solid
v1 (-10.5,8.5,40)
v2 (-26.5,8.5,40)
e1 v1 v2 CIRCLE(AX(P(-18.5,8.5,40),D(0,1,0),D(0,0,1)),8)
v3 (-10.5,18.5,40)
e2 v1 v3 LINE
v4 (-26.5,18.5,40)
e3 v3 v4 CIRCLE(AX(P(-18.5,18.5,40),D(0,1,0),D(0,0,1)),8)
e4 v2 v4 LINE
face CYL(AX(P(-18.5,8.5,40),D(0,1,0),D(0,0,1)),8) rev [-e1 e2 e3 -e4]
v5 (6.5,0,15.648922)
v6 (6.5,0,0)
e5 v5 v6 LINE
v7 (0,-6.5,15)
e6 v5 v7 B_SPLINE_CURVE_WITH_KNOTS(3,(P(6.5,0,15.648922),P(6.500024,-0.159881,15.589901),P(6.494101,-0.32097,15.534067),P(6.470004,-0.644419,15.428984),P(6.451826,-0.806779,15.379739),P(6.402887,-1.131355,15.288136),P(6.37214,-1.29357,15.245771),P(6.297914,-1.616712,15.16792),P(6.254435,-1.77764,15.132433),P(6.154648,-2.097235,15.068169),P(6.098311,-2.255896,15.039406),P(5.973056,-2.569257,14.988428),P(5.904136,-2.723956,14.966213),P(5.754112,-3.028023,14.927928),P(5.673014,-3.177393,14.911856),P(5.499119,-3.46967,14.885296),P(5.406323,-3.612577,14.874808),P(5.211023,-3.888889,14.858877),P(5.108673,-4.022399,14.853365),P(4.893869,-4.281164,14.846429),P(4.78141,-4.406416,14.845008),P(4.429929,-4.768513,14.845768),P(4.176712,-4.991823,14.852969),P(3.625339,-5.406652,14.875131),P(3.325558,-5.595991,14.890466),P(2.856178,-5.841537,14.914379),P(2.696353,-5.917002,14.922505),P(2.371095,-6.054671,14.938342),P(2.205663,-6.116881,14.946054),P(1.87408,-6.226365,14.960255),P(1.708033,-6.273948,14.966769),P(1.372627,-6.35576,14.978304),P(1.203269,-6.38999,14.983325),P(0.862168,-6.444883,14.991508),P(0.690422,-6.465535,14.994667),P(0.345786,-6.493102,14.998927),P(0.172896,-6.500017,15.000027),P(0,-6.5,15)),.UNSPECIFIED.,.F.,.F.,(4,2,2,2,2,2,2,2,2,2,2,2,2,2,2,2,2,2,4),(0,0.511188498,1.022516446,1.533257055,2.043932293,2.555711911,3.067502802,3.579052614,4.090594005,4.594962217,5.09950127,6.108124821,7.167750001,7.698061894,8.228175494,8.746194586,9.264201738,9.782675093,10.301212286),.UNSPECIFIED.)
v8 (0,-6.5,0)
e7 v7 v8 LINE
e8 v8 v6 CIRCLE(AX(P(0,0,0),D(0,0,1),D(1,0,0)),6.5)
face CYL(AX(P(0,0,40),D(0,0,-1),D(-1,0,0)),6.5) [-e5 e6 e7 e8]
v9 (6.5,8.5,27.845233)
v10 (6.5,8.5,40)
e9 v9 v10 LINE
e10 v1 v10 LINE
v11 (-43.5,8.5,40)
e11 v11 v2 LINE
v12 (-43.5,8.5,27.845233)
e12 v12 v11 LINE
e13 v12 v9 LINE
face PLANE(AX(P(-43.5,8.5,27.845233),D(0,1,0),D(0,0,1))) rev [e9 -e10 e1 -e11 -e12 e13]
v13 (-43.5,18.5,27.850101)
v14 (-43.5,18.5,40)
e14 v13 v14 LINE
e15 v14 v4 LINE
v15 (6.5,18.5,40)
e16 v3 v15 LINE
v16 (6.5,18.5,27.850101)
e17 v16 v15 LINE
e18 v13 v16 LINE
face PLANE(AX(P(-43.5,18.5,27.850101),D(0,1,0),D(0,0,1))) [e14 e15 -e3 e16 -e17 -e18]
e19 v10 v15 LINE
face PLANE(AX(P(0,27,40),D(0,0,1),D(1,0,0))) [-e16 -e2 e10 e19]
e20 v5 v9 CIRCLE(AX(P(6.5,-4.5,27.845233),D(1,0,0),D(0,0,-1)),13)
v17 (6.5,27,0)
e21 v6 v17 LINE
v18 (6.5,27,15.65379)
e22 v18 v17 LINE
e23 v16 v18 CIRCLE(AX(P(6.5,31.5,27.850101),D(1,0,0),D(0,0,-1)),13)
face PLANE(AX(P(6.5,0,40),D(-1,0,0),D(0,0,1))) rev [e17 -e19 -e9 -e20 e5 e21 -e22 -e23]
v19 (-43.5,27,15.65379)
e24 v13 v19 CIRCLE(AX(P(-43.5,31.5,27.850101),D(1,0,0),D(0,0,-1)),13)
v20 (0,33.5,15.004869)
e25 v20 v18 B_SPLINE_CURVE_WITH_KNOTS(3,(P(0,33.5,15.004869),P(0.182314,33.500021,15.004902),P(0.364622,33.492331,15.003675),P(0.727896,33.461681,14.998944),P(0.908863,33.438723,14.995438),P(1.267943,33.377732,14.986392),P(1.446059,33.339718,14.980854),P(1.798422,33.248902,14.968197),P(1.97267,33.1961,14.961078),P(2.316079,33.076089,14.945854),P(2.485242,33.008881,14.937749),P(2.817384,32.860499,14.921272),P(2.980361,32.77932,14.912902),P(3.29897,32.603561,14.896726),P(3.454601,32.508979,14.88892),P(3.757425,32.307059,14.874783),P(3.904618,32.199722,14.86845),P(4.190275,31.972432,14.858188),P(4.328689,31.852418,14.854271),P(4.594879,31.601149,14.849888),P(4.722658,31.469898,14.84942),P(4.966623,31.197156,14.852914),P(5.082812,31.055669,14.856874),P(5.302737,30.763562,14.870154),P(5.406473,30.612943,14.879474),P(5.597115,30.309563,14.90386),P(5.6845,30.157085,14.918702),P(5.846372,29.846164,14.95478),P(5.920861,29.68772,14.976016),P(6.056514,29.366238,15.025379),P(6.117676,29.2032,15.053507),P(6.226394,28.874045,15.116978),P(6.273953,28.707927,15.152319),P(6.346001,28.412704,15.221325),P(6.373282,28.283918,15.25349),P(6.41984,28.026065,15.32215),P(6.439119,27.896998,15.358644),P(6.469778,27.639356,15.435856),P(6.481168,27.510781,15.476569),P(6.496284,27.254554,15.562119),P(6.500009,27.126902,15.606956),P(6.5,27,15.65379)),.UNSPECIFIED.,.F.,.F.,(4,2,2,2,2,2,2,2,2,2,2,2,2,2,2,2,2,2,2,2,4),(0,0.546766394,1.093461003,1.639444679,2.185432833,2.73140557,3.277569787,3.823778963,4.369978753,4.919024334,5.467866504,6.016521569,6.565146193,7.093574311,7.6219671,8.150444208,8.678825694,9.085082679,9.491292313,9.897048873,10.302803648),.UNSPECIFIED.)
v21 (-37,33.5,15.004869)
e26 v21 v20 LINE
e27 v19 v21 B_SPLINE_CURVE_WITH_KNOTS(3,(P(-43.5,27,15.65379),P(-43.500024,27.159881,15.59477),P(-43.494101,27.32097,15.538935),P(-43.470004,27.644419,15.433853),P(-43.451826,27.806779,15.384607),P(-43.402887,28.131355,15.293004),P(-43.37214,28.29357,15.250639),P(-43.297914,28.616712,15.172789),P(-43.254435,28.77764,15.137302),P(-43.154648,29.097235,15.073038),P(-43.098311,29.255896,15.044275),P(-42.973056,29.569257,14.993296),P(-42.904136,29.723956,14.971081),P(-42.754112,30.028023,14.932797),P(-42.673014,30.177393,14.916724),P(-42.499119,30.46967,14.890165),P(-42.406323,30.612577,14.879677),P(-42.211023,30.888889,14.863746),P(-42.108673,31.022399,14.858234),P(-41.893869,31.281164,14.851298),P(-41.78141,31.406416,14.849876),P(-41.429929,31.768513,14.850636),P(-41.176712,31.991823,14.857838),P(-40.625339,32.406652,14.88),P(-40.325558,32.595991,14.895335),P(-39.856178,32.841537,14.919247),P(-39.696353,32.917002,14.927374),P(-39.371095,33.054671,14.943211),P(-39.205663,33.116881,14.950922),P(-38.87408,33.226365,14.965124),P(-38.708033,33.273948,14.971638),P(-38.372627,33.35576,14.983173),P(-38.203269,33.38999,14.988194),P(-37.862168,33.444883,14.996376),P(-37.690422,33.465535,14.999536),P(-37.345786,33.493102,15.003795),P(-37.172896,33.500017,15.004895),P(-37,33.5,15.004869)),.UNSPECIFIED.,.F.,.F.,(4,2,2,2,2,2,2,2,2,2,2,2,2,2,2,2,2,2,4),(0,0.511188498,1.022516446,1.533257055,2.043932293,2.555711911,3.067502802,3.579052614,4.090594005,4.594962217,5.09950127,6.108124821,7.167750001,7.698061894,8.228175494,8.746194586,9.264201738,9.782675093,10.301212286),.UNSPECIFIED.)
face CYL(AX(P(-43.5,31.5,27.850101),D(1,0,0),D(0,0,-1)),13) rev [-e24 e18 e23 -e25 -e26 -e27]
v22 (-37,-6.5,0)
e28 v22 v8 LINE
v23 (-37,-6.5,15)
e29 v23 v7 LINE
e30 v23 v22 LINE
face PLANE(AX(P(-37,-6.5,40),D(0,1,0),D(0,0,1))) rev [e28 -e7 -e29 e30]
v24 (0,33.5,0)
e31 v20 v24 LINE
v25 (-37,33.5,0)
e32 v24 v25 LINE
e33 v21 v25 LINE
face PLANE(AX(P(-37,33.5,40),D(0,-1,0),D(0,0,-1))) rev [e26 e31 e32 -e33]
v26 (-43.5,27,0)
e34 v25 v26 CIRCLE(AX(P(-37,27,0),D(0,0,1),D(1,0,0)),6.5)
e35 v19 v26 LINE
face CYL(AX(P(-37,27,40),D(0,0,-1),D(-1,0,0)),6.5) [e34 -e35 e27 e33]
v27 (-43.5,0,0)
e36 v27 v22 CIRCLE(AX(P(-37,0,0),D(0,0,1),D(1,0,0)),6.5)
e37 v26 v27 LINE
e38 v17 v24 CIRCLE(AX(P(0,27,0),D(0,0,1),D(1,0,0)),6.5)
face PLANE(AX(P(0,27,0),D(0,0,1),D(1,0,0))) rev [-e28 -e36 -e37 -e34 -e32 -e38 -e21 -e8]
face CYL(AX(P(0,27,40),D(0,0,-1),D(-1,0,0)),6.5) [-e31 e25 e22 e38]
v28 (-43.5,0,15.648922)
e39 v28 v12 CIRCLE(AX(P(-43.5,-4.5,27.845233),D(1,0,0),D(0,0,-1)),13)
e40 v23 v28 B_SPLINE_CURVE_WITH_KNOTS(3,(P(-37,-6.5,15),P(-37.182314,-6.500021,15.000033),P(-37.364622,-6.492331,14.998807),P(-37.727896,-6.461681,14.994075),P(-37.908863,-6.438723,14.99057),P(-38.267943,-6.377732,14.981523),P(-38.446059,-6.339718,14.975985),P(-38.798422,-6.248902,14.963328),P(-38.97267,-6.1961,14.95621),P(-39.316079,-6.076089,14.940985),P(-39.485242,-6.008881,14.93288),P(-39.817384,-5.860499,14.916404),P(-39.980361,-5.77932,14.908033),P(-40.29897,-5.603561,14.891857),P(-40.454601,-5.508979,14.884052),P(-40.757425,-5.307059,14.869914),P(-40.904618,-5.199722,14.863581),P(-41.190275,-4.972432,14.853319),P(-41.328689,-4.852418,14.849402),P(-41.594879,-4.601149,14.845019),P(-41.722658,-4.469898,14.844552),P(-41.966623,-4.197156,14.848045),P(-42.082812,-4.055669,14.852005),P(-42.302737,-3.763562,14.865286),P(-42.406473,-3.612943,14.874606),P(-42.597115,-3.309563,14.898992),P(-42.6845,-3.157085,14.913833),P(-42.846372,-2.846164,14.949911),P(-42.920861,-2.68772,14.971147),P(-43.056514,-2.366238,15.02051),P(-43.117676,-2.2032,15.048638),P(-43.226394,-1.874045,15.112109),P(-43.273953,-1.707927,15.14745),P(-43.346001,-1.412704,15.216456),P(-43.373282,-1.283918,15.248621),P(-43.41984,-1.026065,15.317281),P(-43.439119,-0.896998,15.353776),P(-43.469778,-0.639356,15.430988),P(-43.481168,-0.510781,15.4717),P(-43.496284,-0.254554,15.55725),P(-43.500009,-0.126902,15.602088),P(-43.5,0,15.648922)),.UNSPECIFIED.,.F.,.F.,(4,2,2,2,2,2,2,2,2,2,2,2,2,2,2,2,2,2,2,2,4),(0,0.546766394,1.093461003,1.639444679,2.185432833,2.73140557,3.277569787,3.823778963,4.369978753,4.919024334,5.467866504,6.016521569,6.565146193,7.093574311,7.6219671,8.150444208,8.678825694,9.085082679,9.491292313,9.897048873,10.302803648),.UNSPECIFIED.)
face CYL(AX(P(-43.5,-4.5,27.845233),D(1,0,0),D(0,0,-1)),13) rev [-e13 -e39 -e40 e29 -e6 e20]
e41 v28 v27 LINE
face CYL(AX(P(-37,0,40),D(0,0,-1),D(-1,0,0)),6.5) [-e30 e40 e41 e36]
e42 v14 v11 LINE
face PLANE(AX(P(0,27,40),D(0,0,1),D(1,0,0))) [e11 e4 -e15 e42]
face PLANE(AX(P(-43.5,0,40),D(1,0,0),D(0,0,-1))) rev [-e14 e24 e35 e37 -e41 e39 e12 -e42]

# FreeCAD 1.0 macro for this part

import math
import FreeCAD as App
import Part
import Sketcher
from FreeCAD import Vector
Q = App.Units.Quantity

doc = App.newDocument("Part")
params = doc.addObject("Spreadsheet::Sheet", "Params")
for row, (alias, value) in enumerate([
    ("sketch1_radius", "6.5 mm"),
    ("sketch1_width", "37 mm"),
    ("sketch1_height", "27 mm"),
    ("pad1_length", "40 mm"),
    ("sketch2_radius", "13 mm"),
    ("sketch2_width", "15 mm"),
    ("sketch2_height", "25 mm"),
    ("sketch3_radius", "8 mm"),
    ("pocket2_length", "10 mm"),
], start=1):
    params.set(f"A{row}", alias)
    params.set(f"B{row}", "=" + value)
    params.setAlias(f"B{row}", alias)

body = doc.addObject("PartDesign::Body", "Body")

# Sketch on XY plane
sketch1 = body.newObject("Sketcher::SketchObject", "Sketch")
sketch1.AttachmentSupport = (doc.getObject("XY_Plane"), [""])
sketch1.MapMode = "FlatFace"
sketch1.addGeometry(Part.LineSegment(Vector(-37, -6, 0), Vector(0, -6, 0)), False)
sketch1.addGeometry(Part.ArcOfCircle(Part.Circle(Vector(0, 0, 0), Vector(0, 0, 1), 6), math.radians(-90), math.radians(0)), False)
sketch1.addGeometry(Part.LineSegment(Vector(6, 0, 0), Vector(6, 27, 0)), False)
sketch1.addGeometry(Part.ArcOfCircle(Part.Circle(Vector(0, 27, 0), Vector(0, 0, 1), 6), math.radians(0), math.radians(90)), False)
sketch1.addGeometry(Part.LineSegment(Vector(0, 34, 0), Vector(-37, 34, 0)), False)
sketch1.addGeometry(Part.ArcOfCircle(Part.Circle(Vector(-37, 27, 0), Vector(0, 0, 1), 6), math.radians(90), math.radians(180)), False)
sketch1.addGeometry(Part.LineSegment(Vector(-44, 27, 0), Vector(-44, 0, 0)), False)
sketch1.addGeometry(Part.ArcOfCircle(Part.Circle(Vector(-37, 0, 0), Vector(0, 0, 1), 6), math.radians(180), math.radians(270)), False)
sketch1.addConstraint(Sketcher.Constraint("Tangent", 0, 2, 1, 1))
sketch1.addConstraint(Sketcher.Constraint("Tangent", 1, 2, 2, 1))
sketch1.addConstraint(Sketcher.Constraint("Tangent", 2, 2, 3, 1))
sketch1.addConstraint(Sketcher.Constraint("Tangent", 3, 2, 4, 1))
sketch1.addConstraint(Sketcher.Constraint("Tangent", 4, 2, 5, 1))
sketch1.addConstraint(Sketcher.Constraint("Tangent", 5, 2, 6, 1))
sketch1.addConstraint(Sketcher.Constraint("Tangent", 6, 2, 7, 1))
sketch1.addConstraint(Sketcher.Constraint("Tangent", 7, 2, 0, 1))
sketch1.addConstraint(Sketcher.Constraint("Horizontal", 0))
sketch1.addConstraint(Sketcher.Constraint("Vertical", 2))
sketch1.addConstraint(Sketcher.Constraint("Horizontal", 4))
sketch1.addConstraint(Sketcher.Constraint("Vertical", 6))
sketch1.addConstraint(Sketcher.Constraint("Coincident", 1, 3, -1, 1))
sketch1.addConstraint(Sketcher.Constraint("Equal", 1, 3))
sketch1.addConstraint(Sketcher.Constraint("Equal", 3, 5))
sketch1.addConstraint(Sketcher.Constraint("Equal", 5, 7))
sketch1.addConstraint(Sketcher.Constraint("Radius", 1, Q("6.5 mm")))
sketch1.addConstraint(Sketcher.Constraint("DistanceX", 0, 1, 0, 2, Q("37 mm")))
sketch1.addConstraint(Sketcher.Constraint("DistanceY", 2, 1, 2, 2, Q("27 mm")))
sketch1.setExpression("Constraints[16]", "Params.sketch1_radius")
sketch1.setExpression("Constraints[17]", "Params.sketch1_width")
sketch1.setExpression("Constraints[18]", "Params.sketch1_height")
pad1 = body.newObject("PartDesign::Pad", "Pad")
pad1.Profile = sketch1
pad1.setExpression("Length", "Params.pad1_length")

# Sketch on YZ plane
sketch2 = body.newObject("Sketcher::SketchObject", "Sketch001")
sketch2.AttachmentSupport = (doc.getObject("YZ_Plane"), [""])
sketch2.MapMode = "FlatFace"
sketch2.AttachmentOffset = App.Placement(Vector(0, 0, 6.5), App.Rotation())
sketch2.addGeometry(Part.LineSegment(Vector(18, 40, 0), Vector(18, 28, 0)), False)
sketch2.addGeometry(Part.ArcOfCircle(Part.Circle(Vector(31, 28, 0), Vector(0, 0, 1), 13), math.radians(180), math.radians(279)), False)
sketch2.addGeometry(Part.LineSegment(Vector(34, 15, 0), Vector(34, 40, 0)), False)
sketch2.addGeometry(Part.LineSegment(Vector(34, 40, 0), Vector(18, 40, 0)), False)
sketch2.addGeometry(Part.LineSegment(Vector(8, 40, 0), Vector(-6, 40, 0)), False)
sketch2.addGeometry(Part.LineSegment(Vector(-6, 40, 0), Vector(-6, 15, 0)), False)
sketch2.addGeometry(Part.ArcOfCircle(Part.Circle(Vector(-4, 28, 0), Vector(0, 0, 1), 13), math.radians(-99), math.radians(0)), False)
sketch2.addGeometry(Part.LineSegment(Vector(8, 28, 0), Vector(8, 40, 0)), False)
sketch2.addConstraint(Sketcher.Constraint("Tangent", 0, 2, 1, 1))
sketch2.addConstraint(Sketcher.Constraint("Coincident", 1, 2, 2, 1))
sketch2.addConstraint(Sketcher.Constraint("Coincident", 2, 2, 3, 1))
sketch2.addConstraint(Sketcher.Constraint("Coincident", 3, 2, 0, 1))
sketch2.addConstraint(Sketcher.Constraint("Coincident", 4, 2, 5, 1))
sketch2.addConstraint(Sketcher.Constraint("Coincident", 5, 2, 6, 1))
sketch2.addConstraint(Sketcher.Constraint("Tangent", 6, 2, 7, 1))
sketch2.addConstraint(Sketcher.Constraint("Coincident", 7, 2, 4, 1))
sketch2.addConstraint(Sketcher.Constraint("Vertical", 0))
sketch2.addConstraint(Sketcher.Constraint("Vertical", 2))
sketch2.addConstraint(Sketcher.Constraint("Horizontal", 3))
sketch2.addConstraint(Sketcher.Constraint("Horizontal", 4))
sketch2.addConstraint(Sketcher.Constraint("Vertical", 5))
sketch2.addConstraint(Sketcher.Constraint("Vertical", 7))
sketch2.addConstraint(Sketcher.Constraint("Equal", 1, 6))
sketch2.addConstraint(Sketcher.Constraint("Horizontal", 3, 2, 4, 2))
sketch2.addConstraint(Sketcher.Constraint("Equal", 3, 4))
sketch2.addConstraint(Sketcher.Constraint("Radius", 1, Q("13 mm")))
sketch2.addConstraint(Sketcher.Constraint("DistanceX", 3, 2, 3, 1, Q("15 mm")))
sketch2.addConstraint(Sketcher.Constraint("DistanceY", 5, 2, 5, 1, Q("25 mm")))
sketch2.addConstraint(Sketcher.Constraint("DistanceY", -1, 1, 2, 2, Q("40 mm")))
sketch2.addConstraint(Sketcher.Constraint("DistanceX", 6, 3, 1, 3, Q("36 mm")))
sketch2.addConstraint(Sketcher.Constraint("DistanceX", -1, 1, 1, 3, Q("31.5 mm")))
sketch2.addConstraint(Sketcher.Constraint("DistanceY", 0, 2, 0, 1, Q("12.149899 mm")))
sketch2.setExpression("Constraints[17]", "Params.sketch2_radius")
sketch2.setExpression("Constraints[18]", "Params.sketch2_width")
sketch2.setExpression("Constraints[19]", "Params.sketch2_height")
pocket1 = body.newObject("PartDesign::Pocket", "Pocket")
pocket1.Profile = sketch2
pocket1.Type = "ThroughAll"

# Sketch on XZ plane
sketch3 = body.newObject("Sketcher::SketchObject", "Sketch002")
sketch3.AttachmentSupport = (doc.getObject("XZ_Plane"), [""])
sketch3.MapMode = "FlatFace"
sketch3.AttachmentOffset = App.Placement(Vector(0, 0, -18.5), App.Rotation())
sketch3.addGeometry(Part.LineSegment(Vector(-26, 40, 0), Vector(-10, 40, 0)), False)
sketch3.addGeometry(Part.ArcOfCircle(Part.Circle(Vector(-18, 40, 0), Vector(0, 0, 1), 8), math.radians(180), math.radians(360)), False)
sketch3.addConstraint(Sketcher.Constraint("Coincident", 0, 1, 1, 1))
sketch3.addConstraint(Sketcher.Constraint("Coincident", 1, 2, 0, 2))
sketch3.addConstraint(Sketcher.Constraint("Horizontal", 0))
sketch3.addConstraint(Sketcher.Constraint("Horizontal", 1, 3, 0, 1))
sketch3.addConstraint(Sketcher.Constraint("Radius", 1, Q("8 mm")))
sketch3.addConstraint(Sketcher.Constraint("DistanceY", -1, 1, 1, 3, Q("40 mm")))
sketch3.addConstraint(Sketcher.Constraint("DistanceX", 1, 3, -1, 1, Q("18.5 mm")))
sketch3.setExpression("Constraints[4]", "Params.sketch3_radius")
pocket2 = body.newObject("PartDesign::Pocket", "Pocket001")
pocket2.Profile = sketch3
pocket2.setExpression("Length", "Params.pocket2_length")
pocket2.Reversed = True

doc.recompute()
